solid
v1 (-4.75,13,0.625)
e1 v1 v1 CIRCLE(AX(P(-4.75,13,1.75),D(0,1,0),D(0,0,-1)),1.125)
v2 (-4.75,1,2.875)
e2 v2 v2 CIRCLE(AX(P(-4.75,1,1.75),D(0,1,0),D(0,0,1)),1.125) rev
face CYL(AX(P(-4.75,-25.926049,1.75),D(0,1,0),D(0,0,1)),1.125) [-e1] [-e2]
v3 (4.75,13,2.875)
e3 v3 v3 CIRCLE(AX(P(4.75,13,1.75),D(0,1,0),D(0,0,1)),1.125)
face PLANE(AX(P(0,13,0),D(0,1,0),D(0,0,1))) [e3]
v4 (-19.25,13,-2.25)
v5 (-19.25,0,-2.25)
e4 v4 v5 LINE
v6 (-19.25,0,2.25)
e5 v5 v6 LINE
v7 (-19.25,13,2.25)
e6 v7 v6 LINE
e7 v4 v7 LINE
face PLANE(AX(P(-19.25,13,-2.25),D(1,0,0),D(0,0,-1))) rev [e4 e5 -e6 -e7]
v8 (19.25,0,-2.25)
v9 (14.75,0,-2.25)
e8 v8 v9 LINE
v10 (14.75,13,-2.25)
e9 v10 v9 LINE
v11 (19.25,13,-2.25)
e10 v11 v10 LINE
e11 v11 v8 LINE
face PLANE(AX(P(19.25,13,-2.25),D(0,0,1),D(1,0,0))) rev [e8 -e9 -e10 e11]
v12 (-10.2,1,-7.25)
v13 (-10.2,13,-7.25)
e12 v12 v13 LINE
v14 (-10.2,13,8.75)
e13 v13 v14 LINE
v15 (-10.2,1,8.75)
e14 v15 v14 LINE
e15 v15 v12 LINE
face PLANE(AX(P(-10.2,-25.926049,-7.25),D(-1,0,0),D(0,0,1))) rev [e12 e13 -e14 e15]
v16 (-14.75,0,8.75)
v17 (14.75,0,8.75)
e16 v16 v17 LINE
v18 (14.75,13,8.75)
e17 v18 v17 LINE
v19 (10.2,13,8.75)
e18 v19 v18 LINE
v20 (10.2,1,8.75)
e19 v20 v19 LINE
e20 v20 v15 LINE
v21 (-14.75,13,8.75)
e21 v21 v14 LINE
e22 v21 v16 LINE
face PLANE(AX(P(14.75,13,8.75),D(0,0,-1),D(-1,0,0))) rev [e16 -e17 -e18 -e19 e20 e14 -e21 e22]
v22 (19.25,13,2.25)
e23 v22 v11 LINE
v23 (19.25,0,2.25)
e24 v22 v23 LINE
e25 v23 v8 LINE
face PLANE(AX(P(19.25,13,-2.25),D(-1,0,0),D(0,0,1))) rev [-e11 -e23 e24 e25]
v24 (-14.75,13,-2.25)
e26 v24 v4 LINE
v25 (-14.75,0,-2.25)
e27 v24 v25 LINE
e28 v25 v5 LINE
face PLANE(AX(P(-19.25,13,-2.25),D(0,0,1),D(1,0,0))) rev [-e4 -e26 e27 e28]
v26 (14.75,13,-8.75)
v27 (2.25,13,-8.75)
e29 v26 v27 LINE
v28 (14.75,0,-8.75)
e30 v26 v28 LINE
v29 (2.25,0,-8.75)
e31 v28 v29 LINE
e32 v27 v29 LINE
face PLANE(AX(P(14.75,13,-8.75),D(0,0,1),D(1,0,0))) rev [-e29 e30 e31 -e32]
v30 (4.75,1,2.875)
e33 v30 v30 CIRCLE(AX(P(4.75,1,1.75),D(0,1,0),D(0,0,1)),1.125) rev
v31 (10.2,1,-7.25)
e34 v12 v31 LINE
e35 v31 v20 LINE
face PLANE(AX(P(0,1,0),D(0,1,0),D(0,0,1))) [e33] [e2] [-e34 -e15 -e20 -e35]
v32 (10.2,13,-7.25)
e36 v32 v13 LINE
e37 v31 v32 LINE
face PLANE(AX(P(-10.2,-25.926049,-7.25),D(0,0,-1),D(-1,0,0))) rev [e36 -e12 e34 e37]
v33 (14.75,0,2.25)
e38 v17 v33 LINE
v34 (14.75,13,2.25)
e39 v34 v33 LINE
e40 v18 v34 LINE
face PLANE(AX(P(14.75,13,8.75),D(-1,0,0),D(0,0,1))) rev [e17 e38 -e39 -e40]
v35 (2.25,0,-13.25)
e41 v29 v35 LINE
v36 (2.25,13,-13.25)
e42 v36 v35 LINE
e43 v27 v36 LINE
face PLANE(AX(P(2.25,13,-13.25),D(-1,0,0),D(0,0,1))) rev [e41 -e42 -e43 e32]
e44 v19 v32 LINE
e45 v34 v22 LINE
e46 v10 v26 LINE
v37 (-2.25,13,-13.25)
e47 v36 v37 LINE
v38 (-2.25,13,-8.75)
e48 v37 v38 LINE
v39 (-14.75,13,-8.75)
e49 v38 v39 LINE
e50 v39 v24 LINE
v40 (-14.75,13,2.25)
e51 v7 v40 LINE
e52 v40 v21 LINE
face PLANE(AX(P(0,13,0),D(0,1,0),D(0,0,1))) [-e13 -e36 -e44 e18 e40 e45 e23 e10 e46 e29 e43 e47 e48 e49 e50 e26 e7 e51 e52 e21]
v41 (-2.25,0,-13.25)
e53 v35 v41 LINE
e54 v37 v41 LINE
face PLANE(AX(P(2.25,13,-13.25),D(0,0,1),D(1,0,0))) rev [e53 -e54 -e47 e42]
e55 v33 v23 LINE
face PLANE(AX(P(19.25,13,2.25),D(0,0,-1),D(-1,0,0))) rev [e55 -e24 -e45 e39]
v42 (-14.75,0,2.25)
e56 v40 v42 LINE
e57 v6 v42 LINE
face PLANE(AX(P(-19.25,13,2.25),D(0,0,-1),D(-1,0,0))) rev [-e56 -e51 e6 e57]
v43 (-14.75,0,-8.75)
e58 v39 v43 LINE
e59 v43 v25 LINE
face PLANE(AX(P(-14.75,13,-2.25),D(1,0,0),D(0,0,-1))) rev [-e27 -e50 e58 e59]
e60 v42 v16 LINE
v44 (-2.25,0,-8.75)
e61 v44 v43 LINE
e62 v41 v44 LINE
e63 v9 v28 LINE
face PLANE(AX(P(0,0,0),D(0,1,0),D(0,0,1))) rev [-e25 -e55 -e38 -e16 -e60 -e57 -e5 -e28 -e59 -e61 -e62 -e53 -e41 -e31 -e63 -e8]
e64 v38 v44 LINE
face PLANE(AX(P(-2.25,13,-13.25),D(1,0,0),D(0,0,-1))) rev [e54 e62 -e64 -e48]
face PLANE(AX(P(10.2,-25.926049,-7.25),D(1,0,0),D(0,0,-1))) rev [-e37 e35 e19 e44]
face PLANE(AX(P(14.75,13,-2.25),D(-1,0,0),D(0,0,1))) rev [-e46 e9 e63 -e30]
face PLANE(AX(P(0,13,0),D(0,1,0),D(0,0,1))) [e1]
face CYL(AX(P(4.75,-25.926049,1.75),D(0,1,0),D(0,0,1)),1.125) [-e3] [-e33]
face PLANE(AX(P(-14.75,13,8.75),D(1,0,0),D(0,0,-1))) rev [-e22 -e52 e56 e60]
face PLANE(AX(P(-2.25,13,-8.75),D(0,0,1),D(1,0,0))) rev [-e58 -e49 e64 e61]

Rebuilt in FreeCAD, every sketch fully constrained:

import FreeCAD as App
import Part
import Sketcher
Q = App.Units.Quantity


def add_polygon(sketch, points):
    """Adds a closed chain of lines whose ends are joined by coincident constraints."""
    first, n = sketch.GeometryCount, len(points)
    for a, b in zip(points, points[1:] + points[:1]):
        sketch.addGeometry(Part.LineSegment(App.Vector(*a, 0), App.Vector(*b, 0)), False)
    for i in range(n):
        sketch.addConstraint(Sketcher.Constraint("Coincident", first + i, 2, first + (i + 1) % n, 1))

doc = App.newDocument("Part")
body = doc.addObject("PartDesign::Body", "Body")

sketch1 = body.newObject("Sketcher::SketchObject", "Sketch")
sketch1.AttachmentSupport = (doc.getObject("XZ_Plane"), [""])
sketch1.MapMode = "FlatFace"
add_polygon(sketch1, [(-14.8, 8.8), (14.8, 8.8), (14.8, 2.2), (19.2, 2.2), (19.2, -2.2), (14.8, -2.2), (14.8, -8.8), (2.2, -8.8), (2.2, -13.2), (-2.2, -13.2), (-2.2, -8.8), (-14.8, -8.8), (-14.8, -2.2), (-19.2, -2.2), (-19.2, 2.2), (-14.8, 2.2)])
sketch1.addConstraint(Sketcher.Constraint("Horizontal", 0))
sketch1.addConstraint(Sketcher.Constraint("Vertical", 1))
sketch1.addConstraint(Sketcher.Constraint("Horizontal", 2))
sketch1.addConstraint(Sketcher.Constraint("Vertical", 3))
sketch1.addConstraint(Sketcher.Constraint("Horizontal", 4))
sketch1.addConstraint(Sketcher.Constraint("Vertical", 5))
sketch1.addConstraint(Sketcher.Constraint("Horizontal", 6))
sketch1.addConstraint(Sketcher.Constraint("Vertical", 7))
sketch1.addConstraint(Sketcher.Constraint("Horizontal", 8))
sketch1.addConstraint(Sketcher.Constraint("Vertical", 9))
sketch1.addConstraint(Sketcher.Constraint("Horizontal", 10))
sketch1.addConstraint(Sketcher.Constraint("Vertical", 11))
sketch1.addConstraint(Sketcher.Constraint("Horizontal", 12))
sketch1.addConstraint(Sketcher.Constraint("Vertical", 13))
sketch1.addConstraint(Sketcher.Constraint("Horizontal", 14))
sketch1.addConstraint(Sketcher.Constraint("Vertical", 15))
sketch1.addConstraint(Sketcher.Constraint("Symmetric", 0, 2, 10, 2, -1, 1))
sketch1.addConstraint(Sketcher.Constraint("Symmetric", 2, 2, 12, 2, -1, 1))
sketch1.addConstraint(Sketcher.Constraint("Symmetric", 4, 2, 14, 2, -1, 1))
sketch1.addConstraint(Sketcher.Constraint("Symmetric", 6, 2, 9, 2, -2))
sketch1.addConstraint(Sketcher.Constraint("Symmetric", 4, 2, 11, 2, -2))
sketch1.addConstraint(Sketcher.Constraint("Equal", 4, 8))
sketch1.addConstraint(Sketcher.Constraint("Equal", 14, 3))
sketch1.addConstraint(Sketcher.Constraint("Equal", 3, 7))
sketch1.addConstraint(Sketcher.Constraint("DistanceX", 0, 1, 0, 2, Q("29.5 mm")))
sketch1.addConstraint(Sketcher.Constraint("DistanceX", 2, 1, 2, 2, Q("4.5 mm")))
sketch1.addConstraint(Sketcher.Constraint("DistanceY", 1, 2, 1, 1, Q("6.5 mm")))
pad1 = body.newObject("PartDesign::Pad", "Pad")
pad1.Profile = sketch1
pad1.Length = 13
pad1.Reversed = True

sketch2 = body.newObject("Sketcher::SketchObject", "Sketch001")
sketch2.AttachmentSupport = (doc.getObject("XZ_Plane"), [""])
sketch2.MapMode = "FlatFace"
sketch2.AttachmentOffset = App.Placement(App.Vector(0, 0, -13), App.Rotation())
add_polygon(sketch2, [(-10.2, -7.2), (-10.2, 8.8), (10.2, 8.8), (10.2, -7.2)])
sketch2.addGeometry(Part.Circle(App.Vector(-4.8, 1.8, 0), App.Vector(0, 0, 1), 1.1), False)
sketch2.addGeometry(Part.Circle(App.Vector(4.8, 1.8, 0), App.Vector(0, 0, 1), 1.1), False)
sketch2.addConstraint(Sketcher.Constraint("Vertical", 0))
sketch2.addConstraint(Sketcher.Constraint("Horizontal", 1))
sketch2.addConstraint(Sketcher.Constraint("Vertical", 2))
sketch2.addConstraint(Sketcher.Constraint("Horizontal", 3))
sketch2.addConstraint(Sketcher.Constraint("Equal", 4, 5))
sketch2.addConstraint(Sketcher.Constraint("Symmetric", 4, 3, 5, 3, -2))
sketch2.addConstraint(Sketcher.Constraint("Diameter", 4, Q("2.25 mm")))
sketch2.addConstraint(Sketcher.Constraint("DistanceY", 0, 1, 0, 2, Q("16 mm")))
sketch2.addConstraint(Sketcher.Constraint("DistanceX", 1, 1, 1, 2, Q("20.4 mm")))
sketch2.addConstraint(Sketcher.Constraint("DistanceY", 4, 3, 0, 2, Q("7 mm")))
sketch2.addConstraint(Sketcher.Constraint("DistanceX", 0, 2, -1, 1, Q("10.2 mm")))
sketch2.addConstraint(Sketcher.Constraint("DistanceX", 4, 3, 5, 3, Q("9.5 mm")))
sketch2.addConstraint(Sketcher.Constraint("DistanceY", -1, 1, 4, 3, Q("1.75 mm")))
pocket1 = body.newObject("PartDesign::Pocket", "Pocket")
pocket1.Profile = sketch2
pocket1.Length = 12
pocket1.Reversed = True

doc.recompute()
